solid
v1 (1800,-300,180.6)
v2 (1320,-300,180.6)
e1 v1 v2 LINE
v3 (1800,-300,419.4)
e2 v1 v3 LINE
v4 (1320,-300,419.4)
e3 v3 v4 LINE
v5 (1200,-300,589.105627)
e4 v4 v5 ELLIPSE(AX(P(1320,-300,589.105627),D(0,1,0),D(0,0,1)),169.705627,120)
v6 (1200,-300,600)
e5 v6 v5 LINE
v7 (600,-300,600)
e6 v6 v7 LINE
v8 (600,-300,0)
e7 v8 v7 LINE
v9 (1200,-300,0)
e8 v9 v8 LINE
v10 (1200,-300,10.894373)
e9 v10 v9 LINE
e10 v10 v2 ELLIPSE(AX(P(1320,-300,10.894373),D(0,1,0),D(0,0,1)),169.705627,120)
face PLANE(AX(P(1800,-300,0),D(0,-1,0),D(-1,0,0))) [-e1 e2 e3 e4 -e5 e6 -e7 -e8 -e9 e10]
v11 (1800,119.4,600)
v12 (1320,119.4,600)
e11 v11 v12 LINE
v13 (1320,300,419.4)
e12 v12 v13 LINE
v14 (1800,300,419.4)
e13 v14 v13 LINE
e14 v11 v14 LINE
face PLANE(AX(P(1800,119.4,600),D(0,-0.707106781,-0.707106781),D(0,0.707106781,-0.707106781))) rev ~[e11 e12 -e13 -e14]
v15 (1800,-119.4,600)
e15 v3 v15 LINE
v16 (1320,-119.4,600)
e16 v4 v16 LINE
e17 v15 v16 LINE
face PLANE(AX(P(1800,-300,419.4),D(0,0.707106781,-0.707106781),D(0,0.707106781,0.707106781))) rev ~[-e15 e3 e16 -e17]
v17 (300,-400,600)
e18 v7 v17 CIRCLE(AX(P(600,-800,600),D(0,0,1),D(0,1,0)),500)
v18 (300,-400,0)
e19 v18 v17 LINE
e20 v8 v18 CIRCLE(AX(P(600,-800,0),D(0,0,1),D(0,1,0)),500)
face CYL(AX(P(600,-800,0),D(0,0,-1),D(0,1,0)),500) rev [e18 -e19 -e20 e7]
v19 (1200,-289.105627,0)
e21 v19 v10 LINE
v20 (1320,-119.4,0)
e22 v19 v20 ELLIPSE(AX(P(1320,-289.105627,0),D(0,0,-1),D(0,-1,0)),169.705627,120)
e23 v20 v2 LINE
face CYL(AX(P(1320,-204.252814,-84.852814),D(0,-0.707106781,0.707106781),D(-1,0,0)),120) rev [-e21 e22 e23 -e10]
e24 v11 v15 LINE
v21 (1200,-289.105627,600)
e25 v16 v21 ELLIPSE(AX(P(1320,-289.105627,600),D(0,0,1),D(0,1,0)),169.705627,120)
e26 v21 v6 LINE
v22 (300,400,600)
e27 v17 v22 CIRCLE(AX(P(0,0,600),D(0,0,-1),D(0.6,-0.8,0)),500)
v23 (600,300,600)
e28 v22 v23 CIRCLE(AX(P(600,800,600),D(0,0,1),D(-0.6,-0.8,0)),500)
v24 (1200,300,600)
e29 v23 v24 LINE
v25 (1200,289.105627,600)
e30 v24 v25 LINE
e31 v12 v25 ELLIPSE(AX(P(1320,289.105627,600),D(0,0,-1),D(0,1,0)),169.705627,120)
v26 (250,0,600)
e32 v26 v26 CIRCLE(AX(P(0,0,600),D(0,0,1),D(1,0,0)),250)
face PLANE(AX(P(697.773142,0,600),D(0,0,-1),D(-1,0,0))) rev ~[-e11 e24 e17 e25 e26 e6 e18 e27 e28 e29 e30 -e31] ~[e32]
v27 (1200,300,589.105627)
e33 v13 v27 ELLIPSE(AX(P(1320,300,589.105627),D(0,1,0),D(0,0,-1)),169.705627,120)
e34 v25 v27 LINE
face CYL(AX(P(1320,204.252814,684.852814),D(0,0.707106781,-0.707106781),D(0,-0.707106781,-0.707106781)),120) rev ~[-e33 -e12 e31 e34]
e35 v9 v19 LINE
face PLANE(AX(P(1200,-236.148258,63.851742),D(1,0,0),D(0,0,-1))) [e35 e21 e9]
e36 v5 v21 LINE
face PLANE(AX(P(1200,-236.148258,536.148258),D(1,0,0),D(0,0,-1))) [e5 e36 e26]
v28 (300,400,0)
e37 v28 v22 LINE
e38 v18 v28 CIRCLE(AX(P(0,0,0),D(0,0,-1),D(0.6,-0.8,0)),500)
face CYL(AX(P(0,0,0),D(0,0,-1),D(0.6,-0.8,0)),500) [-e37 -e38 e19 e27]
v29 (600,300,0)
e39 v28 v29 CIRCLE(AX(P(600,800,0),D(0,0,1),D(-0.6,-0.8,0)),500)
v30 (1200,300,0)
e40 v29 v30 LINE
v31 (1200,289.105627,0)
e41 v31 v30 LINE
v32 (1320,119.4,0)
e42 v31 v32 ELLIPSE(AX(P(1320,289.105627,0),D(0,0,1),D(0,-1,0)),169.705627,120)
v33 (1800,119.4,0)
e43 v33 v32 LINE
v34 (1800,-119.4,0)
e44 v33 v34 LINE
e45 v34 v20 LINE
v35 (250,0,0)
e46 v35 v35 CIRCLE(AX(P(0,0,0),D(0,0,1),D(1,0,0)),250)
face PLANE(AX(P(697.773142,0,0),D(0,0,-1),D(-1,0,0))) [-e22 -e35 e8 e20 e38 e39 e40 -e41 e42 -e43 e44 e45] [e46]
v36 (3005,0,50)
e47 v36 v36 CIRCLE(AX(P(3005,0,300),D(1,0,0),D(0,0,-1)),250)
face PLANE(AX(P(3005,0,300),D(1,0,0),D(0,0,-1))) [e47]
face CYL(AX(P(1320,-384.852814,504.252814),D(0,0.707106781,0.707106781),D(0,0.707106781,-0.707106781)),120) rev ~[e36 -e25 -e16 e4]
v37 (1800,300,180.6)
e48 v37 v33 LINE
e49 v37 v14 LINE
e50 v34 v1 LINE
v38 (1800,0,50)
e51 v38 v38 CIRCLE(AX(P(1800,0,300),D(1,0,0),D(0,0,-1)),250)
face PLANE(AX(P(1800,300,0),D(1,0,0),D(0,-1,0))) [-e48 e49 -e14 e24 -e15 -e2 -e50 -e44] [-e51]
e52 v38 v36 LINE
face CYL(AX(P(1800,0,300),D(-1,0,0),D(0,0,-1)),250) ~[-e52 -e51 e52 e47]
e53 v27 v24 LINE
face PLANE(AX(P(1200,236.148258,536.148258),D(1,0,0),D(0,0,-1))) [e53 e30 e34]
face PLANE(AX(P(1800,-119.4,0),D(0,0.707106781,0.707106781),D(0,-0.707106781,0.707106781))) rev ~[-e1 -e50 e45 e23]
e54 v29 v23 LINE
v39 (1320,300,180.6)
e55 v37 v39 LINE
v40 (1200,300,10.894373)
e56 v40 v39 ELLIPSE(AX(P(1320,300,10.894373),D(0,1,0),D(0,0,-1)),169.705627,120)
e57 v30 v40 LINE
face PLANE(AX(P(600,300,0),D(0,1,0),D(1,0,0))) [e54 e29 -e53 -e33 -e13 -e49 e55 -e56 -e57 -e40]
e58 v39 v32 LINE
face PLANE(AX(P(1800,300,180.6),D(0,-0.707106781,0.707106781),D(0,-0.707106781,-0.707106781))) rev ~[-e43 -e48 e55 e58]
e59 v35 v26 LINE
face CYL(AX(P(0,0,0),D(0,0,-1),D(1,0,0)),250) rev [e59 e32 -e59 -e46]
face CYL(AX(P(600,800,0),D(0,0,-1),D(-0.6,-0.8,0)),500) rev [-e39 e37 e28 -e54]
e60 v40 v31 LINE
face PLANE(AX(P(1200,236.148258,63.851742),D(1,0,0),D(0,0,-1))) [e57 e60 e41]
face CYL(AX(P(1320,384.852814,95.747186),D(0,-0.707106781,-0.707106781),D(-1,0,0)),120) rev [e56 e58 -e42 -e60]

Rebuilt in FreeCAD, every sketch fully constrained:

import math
import FreeCAD as App
import Part
import Sketcher
from FreeCAD import Vector
Q = App.Units.Quantity


def edges_at(feature, points):
    """Names of the edges that pass closest to the given points."""
    edges = feature.Shape.Edges
    near = lambda p: min(range(len(edges)), key=lambda i: edges[i].distToShape(Part.Vertex(*p))[0])
    return sorted({f"Edge{near(p) + 1}" for p in points})


def add_polygon(sketch, points):
    """Adds a closed chain of lines whose ends are joined by coincident constraints."""
    first, n = sketch.GeometryCount, len(points)
    for a, b in zip(points, points[1:] + points[:1]):
        sketch.addGeometry(Part.LineSegment(App.Vector(*a, 0), App.Vector(*b, 0)), False)
    for i in range(n):
        sketch.addConstraint(Sketcher.Constraint("Coincident", first + i, 2, first + (i + 1) % n, 1))

doc = App.newDocument("Part")
body = doc.addObject("PartDesign::Body", "Body")

# Sketch on XY plane
sketch1 = body.newObject("Sketcher::SketchObject", "Sketch")
sketch1.AttachmentSupport = (doc.getObject("XY_Plane"), [""])
sketch1.MapMode = "FlatFace"
sketch1.addGeometry(Part.LineSegment(Vector(1800, 300, 0), Vector(600, 300, 0)), False)
sketch1.addGeometry(Part.ArcOfCircle(Part.Circle(Vector(600, 800, 0), Vector(0, 0, 1), 500), math.radians(-126.869898), math.radians(-90)), False)
sketch1.addGeometry(Part.ArcOfCircle(Part.Circle(Vector(0, 0, 0), Vector(0, 0, 1), 500), math.radians(53.130102), math.radians(306.869898)), False)
sketch1.addGeometry(Part.ArcOfCircle(Part.Circle(Vector(600, -800, 0), Vector(0, 0, 1), 500), math.radians(90), math.radians(126.869898)), False)
sketch1.addGeometry(Part.LineSegment(Vector(600, -300, 0), Vector(1800, -300, 0)), False)
sketch1.addGeometry(Part.LineSegment(Vector(1800, -300, 0), Vector(1800, 300, 0)), False)
sketch1.addGeometry(Part.Circle(Vector(0, 0, 0), Vector(0, 0, 1), 250), False)
sketch1.addConstraint(Sketcher.Constraint("Tangent", 0, 2, 1, 2))
sketch1.addConstraint(Sketcher.Constraint("Tangent", 1, 1, 2, 1))
sketch1.addConstraint(Sketcher.Constraint("Tangent", 2, 2, 3, 2))
sketch1.addConstraint(Sketcher.Constraint("Tangent", 3, 1, 4, 1))
sketch1.addConstraint(Sketcher.Constraint("Coincident", 4, 2, 5, 1))
sketch1.addConstraint(Sketcher.Constraint("Coincident", 5, 2, 0, 1))
sketch1.addConstraint(Sketcher.Constraint("Horizontal", 0))
sketch1.addConstraint(Sketcher.Constraint("Horizontal", 4))
sketch1.addConstraint(Sketcher.Constraint("Vertical", 5))
sketch1.addConstraint(Sketcher.Constraint("Coincident", 2, 3, -1, 1))
sketch1.addConstraint(Sketcher.Constraint("Coincident", 6, 3, -1, 1))
sketch1.addConstraint(Sketcher.Constraint("Equal", 1, 2))
sketch1.addConstraint(Sketcher.Constraint("Equal", 2, 3))
sketch1.addConstraint(Sketcher.Constraint("Vertical", 1, 3, 3, 3))
sketch1.addConstraint(Sketcher.Constraint("Diameter", 6, Q("500 mm")))
sketch1.addConstraint(Sketcher.Constraint("Radius", 1, Q("500 mm")))
sketch1.addConstraint(Sketcher.Constraint("DistanceX", 0, 2, 0, 1, Q("1200 mm")))
sketch1.addConstraint(Sketcher.Constraint("DistanceY", 5, 1, 5, 2, Q("600 mm")))
pad1 = body.newObject("PartDesign::Pad", "Pad")
pad1.Profile = sketch1
pad1.Length = 600

# Sketch on YZ plane
sketch2 = body.newObject("Sketcher::SketchObject", "Sketch001")
sketch2.AttachmentSupport = (doc.getObject("YZ_Plane"), [""])
sketch2.MapMode = "FlatFace"
sketch2.AttachmentOffset = App.Placement(Vector(0, 0, 1800), App.Rotation())
add_polygon(sketch2, [(119.4, 600), (300, 419.4), (300, 600)])  # lines 0-2
add_polygon(sketch2, [(300, 180.6), (119.4, 0), (300, 0)])  # lines 3-5
add_polygon(sketch2, [(-300, 0), (-119.4, 0), (-300, 180.6)])  # lines 6-8
add_polygon(sketch2, [(-300, 419.4), (-119.4, 600), (-300, 600)])  # lines 9-11
sketch2.addConstraint(Sketcher.Constraint("Vertical", 1))
sketch2.addConstraint(Sketcher.Constraint("Horizontal", 2))
sketch2.addConstraint(Sketcher.Constraint("Horizontal", 4))
sketch2.addConstraint(Sketcher.Constraint("Vertical", 5))
sketch2.addConstraint(Sketcher.Constraint("Horizontal", 6))
sketch2.addConstraint(Sketcher.Constraint("Vertical", 8))
sketch2.addConstraint(Sketcher.Constraint("Horizontal", 10))
sketch2.addConstraint(Sketcher.Constraint("Vertical", 11))
sketch2.addConstraint(Sketcher.Constraint("Symmetric", 3, 2, 6, 2, -1, 1))
sketch2.addConstraint(Sketcher.Constraint("Symmetric", 5, 2, 7, 2, -2))
sketch2.addConstraint(Sketcher.Constraint("Symmetric", 2, 2, 9, 2, -2))
sketch2.addConstraint(Sketcher.Constraint("Symmetric", 0, 2, 11, 2, -2))
sketch2.addConstraint(Sketcher.Constraint("PointOnObject", 3, 2, -1))
sketch2.addConstraint(Sketcher.Constraint("Perpendicular", 0, 3))
sketch2.addConstraint(Sketcher.Constraint("Perpendicular", 3, 7))
sketch2.addConstraint(Sketcher.Constraint("Vertical", 2, 2, 3, 2))
sketch2.addConstraint(Sketcher.Constraint("Vertical", 1, 2, 4, 2))
sketch2.addConstraint(Sketcher.Constraint("DistanceX", 2, 2, 2, 1, Q("180.6 mm")))
sketch2.addConstraint(Sketcher.Constraint("DistanceX", -1, 1, 0, 2, Q("300 mm")))
sketch2.addConstraint(Sketcher.Constraint("DistanceY", -1, 1, 1, 2, Q("600 mm")))
pocket1 = body.newObject("PartDesign::Pocket", "Pocket")
pocket1.Profile = sketch2
pocket1.Length = 600

# Sketch on YZ plane
sketch3 = body.newObject("Sketcher::SketchObject", "Sketch002")
sketch3.AttachmentSupport = (doc.getObject("YZ_Plane"), [""])
sketch3.MapMode = "FlatFace"
sketch3.AttachmentOffset = App.Placement(Vector(0, 0, 1800), App.Rotation())
sketch3.addGeometry(Part.Circle(Vector(0, 300, 0), Vector(0, 0, 1), 250), False)
sketch3.addConstraint(Sketcher.Constraint("PointOnObject", 0, 3, -2))
sketch3.addConstraint(Sketcher.Constraint("Diameter", 0, Q("500 mm")))
sketch3.addConstraint(Sketcher.Constraint("DistanceY", -1, 1, 0, 3, Q("300 mm")))
pad2 = body.newObject("PartDesign::Pad", "Pad001")
pad2.Profile = sketch3
pad2.Length = 1205
doc.recompute()

fillet = body.newObject("PartDesign::Fillet", "Fillet")
fillet.Base = (pad2, edges_at(pad2, [
    (1200, -209.7, 509.7),
    (1200, -209.7, 90.3),
    (1200, 209.7, 90.3),
    (1200, 209.7, 509.7),
]))
fillet.Radius = 120

doc.recompute()
